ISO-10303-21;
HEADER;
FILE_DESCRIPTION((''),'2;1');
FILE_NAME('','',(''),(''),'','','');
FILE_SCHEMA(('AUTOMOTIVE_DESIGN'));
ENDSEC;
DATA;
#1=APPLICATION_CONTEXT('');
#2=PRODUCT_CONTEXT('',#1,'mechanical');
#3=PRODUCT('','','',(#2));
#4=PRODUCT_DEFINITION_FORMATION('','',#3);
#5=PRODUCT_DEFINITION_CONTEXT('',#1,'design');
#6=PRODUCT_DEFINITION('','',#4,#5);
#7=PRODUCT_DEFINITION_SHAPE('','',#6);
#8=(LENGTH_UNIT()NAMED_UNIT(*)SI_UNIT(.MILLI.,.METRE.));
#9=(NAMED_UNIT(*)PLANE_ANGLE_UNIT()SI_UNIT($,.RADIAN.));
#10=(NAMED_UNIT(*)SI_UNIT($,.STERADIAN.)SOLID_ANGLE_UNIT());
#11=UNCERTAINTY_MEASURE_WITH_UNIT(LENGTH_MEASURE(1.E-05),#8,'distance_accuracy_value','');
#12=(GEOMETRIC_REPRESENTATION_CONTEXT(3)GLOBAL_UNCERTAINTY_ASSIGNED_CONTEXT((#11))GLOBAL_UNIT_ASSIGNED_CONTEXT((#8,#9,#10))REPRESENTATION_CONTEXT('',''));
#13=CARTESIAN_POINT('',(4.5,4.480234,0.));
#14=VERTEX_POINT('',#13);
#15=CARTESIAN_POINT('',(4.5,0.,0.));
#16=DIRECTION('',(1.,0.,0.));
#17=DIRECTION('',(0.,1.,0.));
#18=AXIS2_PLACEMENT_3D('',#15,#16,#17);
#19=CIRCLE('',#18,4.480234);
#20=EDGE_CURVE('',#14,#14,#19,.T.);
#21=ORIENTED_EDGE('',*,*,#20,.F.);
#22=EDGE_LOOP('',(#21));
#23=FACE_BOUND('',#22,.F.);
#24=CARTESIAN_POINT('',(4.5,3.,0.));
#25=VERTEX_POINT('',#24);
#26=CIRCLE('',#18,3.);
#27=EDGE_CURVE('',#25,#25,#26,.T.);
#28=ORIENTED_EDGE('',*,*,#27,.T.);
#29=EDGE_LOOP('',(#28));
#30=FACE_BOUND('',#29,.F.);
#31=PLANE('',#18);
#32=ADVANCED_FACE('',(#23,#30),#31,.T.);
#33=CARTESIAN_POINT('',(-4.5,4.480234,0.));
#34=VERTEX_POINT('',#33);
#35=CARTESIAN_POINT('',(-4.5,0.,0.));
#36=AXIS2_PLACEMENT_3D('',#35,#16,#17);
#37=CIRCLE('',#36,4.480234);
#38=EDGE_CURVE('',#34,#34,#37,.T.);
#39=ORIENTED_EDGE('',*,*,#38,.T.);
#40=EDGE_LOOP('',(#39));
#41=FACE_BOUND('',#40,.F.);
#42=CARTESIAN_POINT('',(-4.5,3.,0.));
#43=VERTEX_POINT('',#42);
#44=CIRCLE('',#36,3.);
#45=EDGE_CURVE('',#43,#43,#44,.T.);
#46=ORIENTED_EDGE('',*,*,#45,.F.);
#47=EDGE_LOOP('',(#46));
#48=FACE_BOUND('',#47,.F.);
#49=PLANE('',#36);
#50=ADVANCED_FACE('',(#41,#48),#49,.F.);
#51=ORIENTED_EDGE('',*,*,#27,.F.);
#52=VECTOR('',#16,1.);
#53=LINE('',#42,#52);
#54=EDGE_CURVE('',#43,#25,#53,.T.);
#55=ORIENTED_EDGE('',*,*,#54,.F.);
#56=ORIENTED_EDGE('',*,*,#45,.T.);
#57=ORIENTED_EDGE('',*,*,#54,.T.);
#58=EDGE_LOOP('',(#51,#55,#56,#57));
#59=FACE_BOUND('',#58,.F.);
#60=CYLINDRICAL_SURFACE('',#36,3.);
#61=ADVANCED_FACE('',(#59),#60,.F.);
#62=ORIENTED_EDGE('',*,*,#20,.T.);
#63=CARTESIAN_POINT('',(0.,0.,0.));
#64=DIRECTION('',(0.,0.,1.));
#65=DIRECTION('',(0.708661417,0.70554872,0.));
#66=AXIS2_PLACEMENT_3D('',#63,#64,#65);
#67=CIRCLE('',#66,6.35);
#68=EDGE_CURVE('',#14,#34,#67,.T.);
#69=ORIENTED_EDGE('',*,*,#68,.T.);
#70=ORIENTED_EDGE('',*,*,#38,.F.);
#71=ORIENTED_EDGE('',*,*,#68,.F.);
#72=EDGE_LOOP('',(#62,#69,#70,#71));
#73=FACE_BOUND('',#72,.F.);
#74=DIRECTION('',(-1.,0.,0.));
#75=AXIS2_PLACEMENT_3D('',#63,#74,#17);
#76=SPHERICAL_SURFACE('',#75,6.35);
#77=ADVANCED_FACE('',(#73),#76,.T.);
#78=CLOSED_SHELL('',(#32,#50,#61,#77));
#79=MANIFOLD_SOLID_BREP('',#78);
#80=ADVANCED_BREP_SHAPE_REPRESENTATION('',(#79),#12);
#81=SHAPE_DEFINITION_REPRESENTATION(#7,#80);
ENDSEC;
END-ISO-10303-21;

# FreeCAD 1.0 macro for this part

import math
import FreeCAD as App
import Part
import Sketcher

V = App.Vector
Q = App.Units.Quantity

doc = App.newDocument("Part")
body = doc.addObject("PartDesign::Body", "Body")

sketch1 = body.newObject("Sketcher::SketchObject", "Sketch")
sketch1.AttachmentSupport = (doc.getObject("XY_Plane"), [""])
sketch1.MapMode = "FlatFace"
sketch1.addGeometry(Part.LineSegment(V(-4.5, 3, 0), V(4.5, 3, 0)), False)
sketch1.addGeometry(Part.LineSegment(V(4.5, 3, 0), V(4.5, 4.480234, 0)), False)
sketch1.addGeometry(Part.ArcOfCircle(Part.Circle(V(0, 0, 0), V(0, 0, 1), 6.35), math.radians(44.873891), math.radians(135.126109)), False)
sketch1.addGeometry(Part.LineSegment(V(-4.5, 4.480234, 0), V(-4.5, 3, 0)), False)
sketch1.addConstraint(Sketcher.Constraint("Coincident", 0, 2, 1, 1))
sketch1.addConstraint(Sketcher.Constraint("Coincident", 1, 2, 2, 1))
sketch1.addConstraint(Sketcher.Constraint("Coincident", 2, 2, 3, 1))
sketch1.addConstraint(Sketcher.Constraint("Coincident", 3, 2, 0, 1))
sketch1.addConstraint(Sketcher.Constraint("Horizontal", 0))
sketch1.addConstraint(Sketcher.Constraint("Vertical", 1))
sketch1.addConstraint(Sketcher.Constraint("Vertical", 3))
sketch1.addConstraint(Sketcher.Constraint("Coincident", 2, 3, -1, 1))
sketch1.addConstraint(Sketcher.Constraint("Horizontal", 1, 2, 2, 2))
sketch1.addConstraint(Sketcher.Constraint("DistanceX", 0, 1, 0, 2, Q("9 mm")))
sketch1.addConstraint(Sketcher.Constraint("Radius", 2, Q("6.35 mm")))
sketch1.addConstraint(Sketcher.Constraint("DistanceY", -1, 1, 0, 2, Q("3 mm")))
revolution = body.newObject("PartDesign::Revolution", "Revolution")
revolution.Profile = sketch1
revolution.ReferenceAxis = (sketch1, ["H_Axis"])
revolution.Angle = 360

doc.recompute()
